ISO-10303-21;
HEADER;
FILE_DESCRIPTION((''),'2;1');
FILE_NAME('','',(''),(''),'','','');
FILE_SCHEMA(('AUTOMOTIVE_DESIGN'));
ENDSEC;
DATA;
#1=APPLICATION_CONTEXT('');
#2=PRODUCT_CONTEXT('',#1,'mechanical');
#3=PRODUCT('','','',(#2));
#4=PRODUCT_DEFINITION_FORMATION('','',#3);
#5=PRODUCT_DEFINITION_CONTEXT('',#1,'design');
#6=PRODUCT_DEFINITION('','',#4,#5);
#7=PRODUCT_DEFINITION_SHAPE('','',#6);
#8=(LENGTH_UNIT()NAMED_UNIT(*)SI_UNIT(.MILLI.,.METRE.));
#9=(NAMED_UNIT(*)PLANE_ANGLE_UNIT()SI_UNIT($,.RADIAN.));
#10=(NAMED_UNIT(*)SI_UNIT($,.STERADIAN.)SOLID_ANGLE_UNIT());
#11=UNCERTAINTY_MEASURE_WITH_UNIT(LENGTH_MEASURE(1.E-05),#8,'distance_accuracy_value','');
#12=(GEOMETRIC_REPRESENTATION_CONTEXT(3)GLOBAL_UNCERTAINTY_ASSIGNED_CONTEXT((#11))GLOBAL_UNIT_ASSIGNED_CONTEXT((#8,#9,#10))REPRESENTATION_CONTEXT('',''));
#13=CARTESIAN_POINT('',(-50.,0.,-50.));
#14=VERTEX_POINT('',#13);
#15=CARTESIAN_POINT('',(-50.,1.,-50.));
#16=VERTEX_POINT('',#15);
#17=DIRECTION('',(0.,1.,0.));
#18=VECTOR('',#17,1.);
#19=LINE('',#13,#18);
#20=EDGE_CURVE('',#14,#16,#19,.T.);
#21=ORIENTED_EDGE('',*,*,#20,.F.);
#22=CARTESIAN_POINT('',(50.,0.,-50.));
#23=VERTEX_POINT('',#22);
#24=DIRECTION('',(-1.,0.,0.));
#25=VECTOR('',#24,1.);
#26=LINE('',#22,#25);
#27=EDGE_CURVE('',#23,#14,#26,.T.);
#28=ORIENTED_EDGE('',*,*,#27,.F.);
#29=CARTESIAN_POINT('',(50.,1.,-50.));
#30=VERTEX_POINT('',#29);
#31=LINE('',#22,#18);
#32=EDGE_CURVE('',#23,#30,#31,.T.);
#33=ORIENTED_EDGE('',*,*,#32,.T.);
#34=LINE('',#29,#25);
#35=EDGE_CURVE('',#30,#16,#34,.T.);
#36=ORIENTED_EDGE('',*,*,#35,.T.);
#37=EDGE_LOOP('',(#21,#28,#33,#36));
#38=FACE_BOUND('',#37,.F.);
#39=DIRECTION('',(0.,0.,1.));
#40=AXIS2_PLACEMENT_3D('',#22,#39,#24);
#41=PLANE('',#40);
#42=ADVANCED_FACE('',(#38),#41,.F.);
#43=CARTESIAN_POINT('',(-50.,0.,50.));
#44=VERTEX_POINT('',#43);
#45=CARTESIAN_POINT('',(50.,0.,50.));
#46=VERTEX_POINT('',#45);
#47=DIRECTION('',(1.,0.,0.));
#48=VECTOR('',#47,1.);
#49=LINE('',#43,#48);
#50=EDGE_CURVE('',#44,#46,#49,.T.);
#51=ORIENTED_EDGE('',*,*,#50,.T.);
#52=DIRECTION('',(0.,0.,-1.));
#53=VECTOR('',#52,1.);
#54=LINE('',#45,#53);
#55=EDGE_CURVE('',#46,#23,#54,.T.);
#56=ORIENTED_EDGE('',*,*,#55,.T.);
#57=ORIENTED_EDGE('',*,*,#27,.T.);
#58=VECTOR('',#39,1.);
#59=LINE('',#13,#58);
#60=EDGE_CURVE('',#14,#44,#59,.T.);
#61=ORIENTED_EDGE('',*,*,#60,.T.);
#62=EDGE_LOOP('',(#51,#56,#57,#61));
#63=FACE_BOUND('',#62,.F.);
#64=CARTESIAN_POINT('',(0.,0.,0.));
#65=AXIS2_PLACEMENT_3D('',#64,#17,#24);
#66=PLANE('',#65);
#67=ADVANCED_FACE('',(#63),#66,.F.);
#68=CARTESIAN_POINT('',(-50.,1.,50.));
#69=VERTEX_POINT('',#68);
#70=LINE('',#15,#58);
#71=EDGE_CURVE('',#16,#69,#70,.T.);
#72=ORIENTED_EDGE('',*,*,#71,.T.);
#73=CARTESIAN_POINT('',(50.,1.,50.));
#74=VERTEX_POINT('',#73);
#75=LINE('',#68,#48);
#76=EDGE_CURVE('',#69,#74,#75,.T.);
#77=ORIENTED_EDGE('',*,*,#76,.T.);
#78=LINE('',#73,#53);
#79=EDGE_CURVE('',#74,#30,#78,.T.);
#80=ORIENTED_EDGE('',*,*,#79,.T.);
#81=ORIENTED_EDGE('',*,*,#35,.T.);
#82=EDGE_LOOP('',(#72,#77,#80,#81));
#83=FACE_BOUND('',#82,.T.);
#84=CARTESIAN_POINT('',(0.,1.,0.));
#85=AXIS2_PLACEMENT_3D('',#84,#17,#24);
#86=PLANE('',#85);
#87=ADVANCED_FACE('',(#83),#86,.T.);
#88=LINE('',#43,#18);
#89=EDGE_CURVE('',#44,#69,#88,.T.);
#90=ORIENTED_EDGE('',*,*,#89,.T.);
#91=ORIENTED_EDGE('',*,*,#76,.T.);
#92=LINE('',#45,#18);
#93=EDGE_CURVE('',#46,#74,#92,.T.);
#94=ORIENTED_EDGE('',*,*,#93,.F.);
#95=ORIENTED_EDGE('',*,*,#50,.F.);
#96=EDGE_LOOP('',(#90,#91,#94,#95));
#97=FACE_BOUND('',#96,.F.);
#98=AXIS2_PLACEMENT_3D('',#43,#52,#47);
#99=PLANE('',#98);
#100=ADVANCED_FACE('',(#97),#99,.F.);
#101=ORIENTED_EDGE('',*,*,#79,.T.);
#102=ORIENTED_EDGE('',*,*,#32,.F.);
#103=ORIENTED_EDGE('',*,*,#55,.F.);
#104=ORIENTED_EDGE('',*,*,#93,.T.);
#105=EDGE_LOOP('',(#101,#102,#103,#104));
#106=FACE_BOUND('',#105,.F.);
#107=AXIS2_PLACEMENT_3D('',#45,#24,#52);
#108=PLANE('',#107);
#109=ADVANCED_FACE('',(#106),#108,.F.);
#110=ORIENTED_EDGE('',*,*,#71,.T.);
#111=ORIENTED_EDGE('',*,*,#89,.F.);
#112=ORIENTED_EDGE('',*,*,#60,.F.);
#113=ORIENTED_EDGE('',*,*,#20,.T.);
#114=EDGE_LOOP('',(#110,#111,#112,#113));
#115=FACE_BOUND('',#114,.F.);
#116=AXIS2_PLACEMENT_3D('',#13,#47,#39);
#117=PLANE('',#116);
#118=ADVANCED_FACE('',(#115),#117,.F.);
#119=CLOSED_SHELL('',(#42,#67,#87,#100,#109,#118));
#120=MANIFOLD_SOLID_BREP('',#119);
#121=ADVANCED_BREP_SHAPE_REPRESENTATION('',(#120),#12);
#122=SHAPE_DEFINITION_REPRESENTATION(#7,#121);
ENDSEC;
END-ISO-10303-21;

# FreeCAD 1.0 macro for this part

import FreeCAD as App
import Part
import Sketcher

doc = App.newDocument("Part")
params = doc.addObject("Spreadsheet::Sheet", "Params")
for row, (alias, value) in enumerate([
    ("sketch1_width", "100 mm"),
    ("pad1_length", "1 mm"),
], start=1):
    params.set(f"A{row}", alias)
    params.set(f"B{row}", "=" + value)
    params.setAlias(f"B{row}", alias)

body = doc.addObject("PartDesign::Body", "Body")

# Sketch on XZ plane
sketch1 = body.newObject("Sketcher::SketchObject", "Sketch")
sketch1.AttachmentSupport = (doc.getObject("XZ_Plane"), [""])
sketch1.MapMode = "FlatFace"
sketch1.addGeometry(Part.LineSegment(App.Vector(-50, -50, 0), App.Vector(-50, 50, 0)), False)
sketch1.addGeometry(Part.LineSegment(App.Vector(-50, 50, 0), App.Vector(50, 50, 0)), False)
sketch1.addGeometry(Part.LineSegment(App.Vector(50, 50, 0), App.Vector(50, -50, 0)), False)
sketch1.addGeometry(Part.LineSegment(App.Vector(50, -50, 0), App.Vector(-50, -50, 0)), False)
sketch1.addConstraint(Sketcher.Constraint("Coincident", 0, 2, 1, 1))
sketch1.addConstraint(Sketcher.Constraint("Coincident", 1, 2, 2, 1))
sketch1.addConstraint(Sketcher.Constraint("Coincident", 2, 2, 3, 1))
sketch1.addConstraint(Sketcher.Constraint("Coincident", 3, 2, 0, 1))
sketch1.addConstraint(Sketcher.Constraint("Vertical", 0))
sketch1.addConstraint(Sketcher.Constraint("Horizontal", 1))
sketch1.addConstraint(Sketcher.Constraint("Vertical", 2))
sketch1.addConstraint(Sketcher.Constraint("Horizontal", 3))
sketch1.addConstraint(Sketcher.Constraint("Symmetric", 0, 2, 2, 2, -1, 1))
sketch1.addConstraint(Sketcher.Constraint("Equal", 3, 0))
sketch1.addConstraint(Sketcher.Constraint("DistanceX", 1, 1, 1, 2, 100.0))
sketch1.setExpression("Constraints[10]", "Params.sketch1_width")
pad1 = body.newObject("PartDesign::Pad", "Pad")
pad1.Profile = sketch1
pad1.setExpression("Length", "Params.pad1_length")
pad1.Reversed = True

doc.recompute()
